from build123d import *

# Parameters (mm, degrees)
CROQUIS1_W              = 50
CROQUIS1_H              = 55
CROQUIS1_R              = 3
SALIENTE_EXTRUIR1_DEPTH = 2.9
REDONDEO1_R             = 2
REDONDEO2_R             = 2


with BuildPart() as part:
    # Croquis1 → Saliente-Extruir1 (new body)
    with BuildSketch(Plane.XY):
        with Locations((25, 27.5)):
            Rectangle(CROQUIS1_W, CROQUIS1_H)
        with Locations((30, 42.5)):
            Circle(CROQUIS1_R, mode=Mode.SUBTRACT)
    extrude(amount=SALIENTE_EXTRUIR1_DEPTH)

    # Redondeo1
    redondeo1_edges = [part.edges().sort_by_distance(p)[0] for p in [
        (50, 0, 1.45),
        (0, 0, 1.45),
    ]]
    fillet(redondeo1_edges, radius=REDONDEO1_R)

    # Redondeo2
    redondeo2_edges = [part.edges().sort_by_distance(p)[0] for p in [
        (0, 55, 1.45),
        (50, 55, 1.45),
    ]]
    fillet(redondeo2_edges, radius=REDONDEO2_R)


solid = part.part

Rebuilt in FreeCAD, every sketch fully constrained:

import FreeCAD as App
import Part
import Sketcher
Q = App.Units.Quantity


def edges_at(feature, points):
    """Names of the edges that pass closest to the given points."""
    edges = feature.Shape.Edges
    near = lambda p: min(range(len(edges)), key=lambda i: edges[i].distToShape(Part.Vertex(*p))[0])
    return sorted({f"Edge{near(p) + 1}" for p in points})

doc = App.newDocument("Part")
body = doc.addObject("PartDesign::Body", "Body")

sketch1 = doc.addObject("Sketcher::SketchObject", "Sketch")
body.addObject(sketch1)
sketch1.AttachmentSupport = (doc.XY_Plane, [""])
sketch1.MapMode = "FlatFace"
sketch1.addGeometry([
    Part.LineSegment(App.Vector(0, 55, 0), App.Vector(0, 0, 0)),
    Part.LineSegment(App.Vector(0, 0, 0), App.Vector(50, 0, 0)),
    Part.LineSegment(App.Vector(50, 0, 0), App.Vector(50, 55, 0)),
    Part.LineSegment(App.Vector(50, 55, 0), App.Vector(0, 55, 0)),
    Part.Circle(App.Vector(30, 42.5, 0), App.Vector(0, 0, 1), 3),
], False)
sketch1.addConstraint([
    Sketcher.Constraint("Coincident", 0, 2, 1, 1),
    Sketcher.Constraint("Coincident", 1, 2, 2, 1),
    Sketcher.Constraint("Coincident", 2, 2, 3, 1),
    Sketcher.Constraint("Coincident", 3, 2, 0, 1),
    Sketcher.Constraint("Vertical", 0),
    Sketcher.Constraint("Horizontal", 1),
    Sketcher.Constraint("Vertical", 2),
    Sketcher.Constraint("Horizontal", 3),
    Sketcher.Constraint("Coincident", 0, 2, -1, 1),
    Sketcher.Constraint("Diameter", 4, Q("6 mm")),
    Sketcher.Constraint("DistanceX", 1, 1, 1, 2, Q("50 mm")),
    Sketcher.Constraint("DistanceY", 0, 2, 0, 1, Q("55 mm")),
    Sketcher.Constraint("DistanceX", -1, 1, 4, 3, Q("30 mm")),
    Sketcher.Constraint("DistanceY", -1, 1, 4, 3, Q("42.5 mm")),
])
pad1 = doc.addObject("PartDesign::Pad", "Pad")
body.addObject(pad1)
pad1.Profile = sketch1
pad1.Length = 2.9
doc.recompute()

fillet = doc.addObject("PartDesign::Fillet", "Fillet")
body.addObject(fillet)
fillet.Base = (pad1, edges_at(pad1, [(50, 0, 1.45), (0, 0, 1.45)]))
fillet.Radius = 2
doc.recompute()

fillet2 = doc.addObject("PartDesign::Fillet", "Fillet001")
body.addObject(fillet2)
fillet2.Base = (fillet, edges_at(fillet, [(0, 55, 1.45), (50, 55, 1.45)]))
fillet2.Radius = 2

doc.recompute()
